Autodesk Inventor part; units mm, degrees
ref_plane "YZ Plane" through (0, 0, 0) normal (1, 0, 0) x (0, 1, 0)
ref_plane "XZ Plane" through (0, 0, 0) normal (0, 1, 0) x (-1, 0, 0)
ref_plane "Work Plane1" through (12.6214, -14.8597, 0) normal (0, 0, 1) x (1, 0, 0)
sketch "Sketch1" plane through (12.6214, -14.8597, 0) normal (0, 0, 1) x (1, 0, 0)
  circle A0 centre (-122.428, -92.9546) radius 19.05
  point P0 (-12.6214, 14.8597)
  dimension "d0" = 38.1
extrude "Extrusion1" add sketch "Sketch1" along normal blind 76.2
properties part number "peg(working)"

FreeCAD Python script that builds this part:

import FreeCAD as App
import Part
import Sketcher

V = App.Vector
Q = App.Units.Quantity

doc = App.newDocument("Part")
params = doc.addObject("Spreadsheet::Sheet", "Params")
for row, (alias, value) in enumerate([
    ("sketch1_diameter", "1.5 in"),
    ("pad1_length", "3 in"),
], start=1):
    params.set(f"A{row}", alias)
    params.set(f"B{row}", "=" + value)
    params.setAlias(f"B{row}", alias)

body = doc.addObject("PartDesign::Body", "Body")

# Sketch on XY plane
sketch1 = doc.addObject("Sketcher::SketchObject", "Sketch")
body.addObject(sketch1)
sketch1.AttachmentSupport = (doc.XY_Plane, [""])
sketch1.MapMode = "FlatFace"
sketch1.addGeometry(Part.Circle(V(-110, -108, 0), V(0, 0, 1), 19), False)
sketch1.addConstraint(Sketcher.Constraint("Diameter", 0, Q("1.5 in")))
sketch1.addConstraint(Sketcher.Constraint("DistanceX", 0, 3, -1, 1, Q("4.3231 in")))
sketch1.addConstraint(Sketcher.Constraint("DistanceY", 0, 3, -1, 1, Q("107.8143 mm")))
sketch1.setExpression("Constraints[0]", "Params.sketch1_diameter")
pad1 = doc.addObject("PartDesign::Pad", "Pad")
body.addObject(pad1)
pad1.Profile = sketch1
pad1.setExpression("Length", "Params.pad1_length")

doc.recompute()
